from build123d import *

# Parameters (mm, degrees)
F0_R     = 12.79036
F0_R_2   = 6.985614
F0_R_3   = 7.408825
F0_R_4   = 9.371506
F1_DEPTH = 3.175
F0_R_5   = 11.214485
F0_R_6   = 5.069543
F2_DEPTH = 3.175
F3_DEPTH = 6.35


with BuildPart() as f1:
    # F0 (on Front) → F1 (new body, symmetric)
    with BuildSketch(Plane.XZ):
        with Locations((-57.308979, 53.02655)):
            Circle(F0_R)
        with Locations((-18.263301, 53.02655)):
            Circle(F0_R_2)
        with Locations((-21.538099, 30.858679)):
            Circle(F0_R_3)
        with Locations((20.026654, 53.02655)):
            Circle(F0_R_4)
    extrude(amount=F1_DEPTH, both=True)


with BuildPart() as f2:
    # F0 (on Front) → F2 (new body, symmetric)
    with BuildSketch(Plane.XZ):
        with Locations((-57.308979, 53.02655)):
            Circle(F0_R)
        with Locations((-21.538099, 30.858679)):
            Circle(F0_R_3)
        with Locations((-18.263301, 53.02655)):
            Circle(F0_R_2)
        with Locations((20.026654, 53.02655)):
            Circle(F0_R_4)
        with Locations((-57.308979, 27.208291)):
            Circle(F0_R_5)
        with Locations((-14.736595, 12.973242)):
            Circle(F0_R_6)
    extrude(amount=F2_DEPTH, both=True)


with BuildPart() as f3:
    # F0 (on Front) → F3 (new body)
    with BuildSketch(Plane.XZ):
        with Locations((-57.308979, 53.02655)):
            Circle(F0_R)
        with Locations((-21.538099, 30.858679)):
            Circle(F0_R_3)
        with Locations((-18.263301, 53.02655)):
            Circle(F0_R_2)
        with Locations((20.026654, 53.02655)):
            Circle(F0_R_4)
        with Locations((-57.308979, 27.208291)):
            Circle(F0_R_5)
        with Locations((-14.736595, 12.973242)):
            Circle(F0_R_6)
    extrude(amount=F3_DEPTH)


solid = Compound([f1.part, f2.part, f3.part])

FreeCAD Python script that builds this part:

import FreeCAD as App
import Part
import Sketcher

V = App.Vector
Q = App.Units.Quantity

doc = App.newDocument("Part")
body = doc.addObject("PartDesign::Body", "Body")
body.AllowCompound = True

# Sketch on XZ plane
sketch1 = body.newObject("Sketcher::SketchObject", "Sketch")
sketch1.AttachmentSupport = (doc.getObject("XZ_Plane"), [""])
sketch1.MapMode = "FlatFace"
sketch1.addGeometry(Part.Circle(V(-57.308979, 53.02655, 0), V(0, 0, 1), 12.79036), False)
sketch1.addGeometry(Part.Circle(V(-18.263301, 53.02655, 0), V(0, 0, 1), 6.985614), False)
sketch1.addGeometry(Part.Circle(V(-21.538099, 30.858679, 0), V(0, 0, 1), 7.408825), False)
sketch1.addGeometry(Part.Circle(V(20.026654, 53.02655, 0), V(0, 0, 1), 9.371506), False)
sketch1.addConstraint(Sketcher.Constraint("Horizontal", 0, 3, 1, 3))
sketch1.addConstraint(Sketcher.Constraint("Horizontal", 1, 3, 3, 3))
sketch1.addConstraint(Sketcher.Constraint("Diameter", 0, 25.58072))
sketch1.addConstraint(Sketcher.Constraint("Diameter", 2, 14.81765))
sketch1.addConstraint(Sketcher.Constraint("Diameter", 3, 18.743012))
sketch1.addConstraint(Sketcher.Constraint("Diameter", 1, 13.971228))
sketch1.addConstraint(Sketcher.Constraint("DistanceX", 1, 3, -1, 1, 18.263301))
sketch1.addConstraint(Sketcher.Constraint("DistanceX", 2, 3, -1, 1, 21.538099))
sketch1.addConstraint(Sketcher.Constraint("DistanceX", 0, 3, -1, 1, 57.308979))
sketch1.addConstraint(Sketcher.Constraint("DistanceY", -1, 1, 0, 3, 53.02655))
sketch1.addConstraint(Sketcher.Constraint("DistanceY", -1, 1, 2, 3, 30.858679))
sketch1.addConstraint(Sketcher.Constraint("DistanceX", -1, 1, 3, 3, 20.026654))
pad1 = body.newObject("PartDesign::Pad", "Pad")
pad1.Profile = sketch1
pad1.Length = Q("0.25 in")
pad1.Midplane = True
body2 = doc.addObject("PartDesign::Body", "Body001")
body2.AllowCompound = True

# Sketch on XZ plane
sketch2 = body2.newObject("Sketcher::SketchObject", "Sketch001")
sketch2.AttachmentSupport = (doc.getObject("XZ_Plane001"), [""])
sketch2.MapMode = "FlatFace"
sketch2.addGeometry(Part.Circle(V(-57.308979, 53.02655, 0), V(0, 0, 1), 12.79036), False)
sketch2.addGeometry(Part.Circle(V(-21.538099, 30.858679, 0), V(0, 0, 1), 7.408825), False)
sketch2.addGeometry(Part.Circle(V(-18.263301, 53.02655, 0), V(0, 0, 1), 6.985614), False)
sketch2.addGeometry(Part.Circle(V(20.026654, 53.02655, 0), V(0, 0, 1), 9.371506), False)
sketch2.addGeometry(Part.Circle(V(-57.308979, 27.208291, 0), V(0, 0, 1), 11.214485), False)
sketch2.addGeometry(Part.Circle(V(-14.736595, 12.973242, 0), V(0, 0, 1), 5.069543), False)
sketch2.addConstraint(Sketcher.Constraint("Horizontal", 0, 3, 2, 3))
sketch2.addConstraint(Sketcher.Constraint("Horizontal", 2, 3, 3, 3))
sketch2.addConstraint(Sketcher.Constraint("Vertical", 0, 3, 4, 3))
sketch2.addConstraint(Sketcher.Constraint("Diameter", 0, 25.58072))
sketch2.addConstraint(Sketcher.Constraint("Diameter", 1, 14.81765))
sketch2.addConstraint(Sketcher.Constraint("Diameter", 3, 18.743012))
sketch2.addConstraint(Sketcher.Constraint("Diameter", 4, 22.42897))
sketch2.addConstraint(Sketcher.Constraint("Diameter", 2, 13.971228))
sketch2.addConstraint(Sketcher.Constraint("Diameter", 5, 10.139086))
sketch2.addConstraint(Sketcher.Constraint("DistanceX", 1, 3, -1, 1, 21.538099))
sketch2.addConstraint(Sketcher.Constraint("DistanceX", 2, 3, -1, 1, 18.263301))
sketch2.addConstraint(Sketcher.Constraint("DistanceX", 0, 3, -1, 1, 57.308979))
sketch2.addConstraint(Sketcher.Constraint("DistanceY", -1, 1, 0, 3, 53.02655))
sketch2.addConstraint(Sketcher.Constraint("DistanceY", -1, 1, 1, 3, 30.858679))
sketch2.addConstraint(Sketcher.Constraint("DistanceY", -1, 1, 4, 3, 27.208291))
sketch2.addConstraint(Sketcher.Constraint("DistanceY", 5, 3, 4, 3, 14.235049))
sketch2.addConstraint(Sketcher.Constraint("DistanceX", 5, 3, 3, 3, 34.763249))
sketch2.addConstraint(Sketcher.Constraint("DistanceX", -1, 1, 3, 3, 20.026654))
pad2 = body2.newObject("PartDesign::Pad", "Pad001")
pad2.Profile = sketch2
pad2.Length = Q("0.25 in")
pad2.Midplane = True
body3 = doc.addObject("PartDesign::Body", "Body002")
body3.AllowCompound = True

# Sketch on XZ plane
sketch3 = body3.newObject("Sketcher::SketchObject", "Sketch002")
sketch3.AttachmentSupport = (doc.getObject("XZ_Plane002"), [""])
sketch3.MapMode = "FlatFace"
sketch3.addGeometry(Part.Circle(V(-57.308979, 53.02655, 0), V(0, 0, 1), 12.79036), False)
sketch3.addGeometry(Part.Circle(V(-21.538099, 30.858679, 0), V(0, 0, 1), 7.408825), False)
sketch3.addGeometry(Part.Circle(V(-18.263301, 53.02655, 0), V(0, 0, 1), 6.985614), False)
sketch3.addGeometry(Part.Circle(V(20.026654, 53.02655, 0), V(0, 0, 1), 9.371506), False)
sketch3.addGeometry(Part.Circle(V(-57.308979, 27.208291, 0), V(0, 0, 1), 11.214485), False)
sketch3.addGeometry(Part.Circle(V(-14.736595, 12.973242, 0), V(0, 0, 1), 5.069543), False)
sketch3.addConstraint(Sketcher.Constraint("Horizontal", 0, 3, 2, 3))
sketch3.addConstraint(Sketcher.Constraint("Horizontal", 2, 3, 3, 3))
sketch3.addConstraint(Sketcher.Constraint("Vertical", 0, 3, 4, 3))
sketch3.addConstraint(Sketcher.Constraint("Diameter", 0, 25.58072))
sketch3.addConstraint(Sketcher.Constraint("Diameter", 1, 14.81765))
sketch3.addConstraint(Sketcher.Constraint("Diameter", 3, 18.743012))
sketch3.addConstraint(Sketcher.Constraint("Diameter", 4, 22.42897))
sketch3.addConstraint(Sketcher.Constraint("Diameter", 2, 13.971228))
sketch3.addConstraint(Sketcher.Constraint("Diameter", 5, 10.139086))
sketch3.addConstraint(Sketcher.Constraint("DistanceX", 1, 3, -1, 1, 21.538099))
sketch3.addConstraint(Sketcher.Constraint("DistanceX", 2, 3, -1, 1, 18.263301))
sketch3.addConstraint(Sketcher.Constraint("DistanceX", 0, 3, -1, 1, 57.308979))
sketch3.addConstraint(Sketcher.Constraint("DistanceY", -1, 1, 0, 3, 53.02655))
sketch3.addConstraint(Sketcher.Constraint("DistanceY", -1, 1, 1, 3, 30.858679))
sketch3.addConstraint(Sketcher.Constraint("DistanceY", -1, 1, 4, 3, 27.208291))
sketch3.addConstraint(Sketcher.Constraint("DistanceY", 5, 3, 4, 3, 14.235049))
sketch3.addConstraint(Sketcher.Constraint("DistanceX", 5, 3, 3, 3, 34.763249))
sketch3.addConstraint(Sketcher.Constraint("DistanceX", -1, 1, 3, 3, 20.026654))
pad3 = body3.newObject("PartDesign::Pad", "Pad002")
pad3.Profile = sketch3
pad3.Length = Q("0.25 in")

doc.recompute()
